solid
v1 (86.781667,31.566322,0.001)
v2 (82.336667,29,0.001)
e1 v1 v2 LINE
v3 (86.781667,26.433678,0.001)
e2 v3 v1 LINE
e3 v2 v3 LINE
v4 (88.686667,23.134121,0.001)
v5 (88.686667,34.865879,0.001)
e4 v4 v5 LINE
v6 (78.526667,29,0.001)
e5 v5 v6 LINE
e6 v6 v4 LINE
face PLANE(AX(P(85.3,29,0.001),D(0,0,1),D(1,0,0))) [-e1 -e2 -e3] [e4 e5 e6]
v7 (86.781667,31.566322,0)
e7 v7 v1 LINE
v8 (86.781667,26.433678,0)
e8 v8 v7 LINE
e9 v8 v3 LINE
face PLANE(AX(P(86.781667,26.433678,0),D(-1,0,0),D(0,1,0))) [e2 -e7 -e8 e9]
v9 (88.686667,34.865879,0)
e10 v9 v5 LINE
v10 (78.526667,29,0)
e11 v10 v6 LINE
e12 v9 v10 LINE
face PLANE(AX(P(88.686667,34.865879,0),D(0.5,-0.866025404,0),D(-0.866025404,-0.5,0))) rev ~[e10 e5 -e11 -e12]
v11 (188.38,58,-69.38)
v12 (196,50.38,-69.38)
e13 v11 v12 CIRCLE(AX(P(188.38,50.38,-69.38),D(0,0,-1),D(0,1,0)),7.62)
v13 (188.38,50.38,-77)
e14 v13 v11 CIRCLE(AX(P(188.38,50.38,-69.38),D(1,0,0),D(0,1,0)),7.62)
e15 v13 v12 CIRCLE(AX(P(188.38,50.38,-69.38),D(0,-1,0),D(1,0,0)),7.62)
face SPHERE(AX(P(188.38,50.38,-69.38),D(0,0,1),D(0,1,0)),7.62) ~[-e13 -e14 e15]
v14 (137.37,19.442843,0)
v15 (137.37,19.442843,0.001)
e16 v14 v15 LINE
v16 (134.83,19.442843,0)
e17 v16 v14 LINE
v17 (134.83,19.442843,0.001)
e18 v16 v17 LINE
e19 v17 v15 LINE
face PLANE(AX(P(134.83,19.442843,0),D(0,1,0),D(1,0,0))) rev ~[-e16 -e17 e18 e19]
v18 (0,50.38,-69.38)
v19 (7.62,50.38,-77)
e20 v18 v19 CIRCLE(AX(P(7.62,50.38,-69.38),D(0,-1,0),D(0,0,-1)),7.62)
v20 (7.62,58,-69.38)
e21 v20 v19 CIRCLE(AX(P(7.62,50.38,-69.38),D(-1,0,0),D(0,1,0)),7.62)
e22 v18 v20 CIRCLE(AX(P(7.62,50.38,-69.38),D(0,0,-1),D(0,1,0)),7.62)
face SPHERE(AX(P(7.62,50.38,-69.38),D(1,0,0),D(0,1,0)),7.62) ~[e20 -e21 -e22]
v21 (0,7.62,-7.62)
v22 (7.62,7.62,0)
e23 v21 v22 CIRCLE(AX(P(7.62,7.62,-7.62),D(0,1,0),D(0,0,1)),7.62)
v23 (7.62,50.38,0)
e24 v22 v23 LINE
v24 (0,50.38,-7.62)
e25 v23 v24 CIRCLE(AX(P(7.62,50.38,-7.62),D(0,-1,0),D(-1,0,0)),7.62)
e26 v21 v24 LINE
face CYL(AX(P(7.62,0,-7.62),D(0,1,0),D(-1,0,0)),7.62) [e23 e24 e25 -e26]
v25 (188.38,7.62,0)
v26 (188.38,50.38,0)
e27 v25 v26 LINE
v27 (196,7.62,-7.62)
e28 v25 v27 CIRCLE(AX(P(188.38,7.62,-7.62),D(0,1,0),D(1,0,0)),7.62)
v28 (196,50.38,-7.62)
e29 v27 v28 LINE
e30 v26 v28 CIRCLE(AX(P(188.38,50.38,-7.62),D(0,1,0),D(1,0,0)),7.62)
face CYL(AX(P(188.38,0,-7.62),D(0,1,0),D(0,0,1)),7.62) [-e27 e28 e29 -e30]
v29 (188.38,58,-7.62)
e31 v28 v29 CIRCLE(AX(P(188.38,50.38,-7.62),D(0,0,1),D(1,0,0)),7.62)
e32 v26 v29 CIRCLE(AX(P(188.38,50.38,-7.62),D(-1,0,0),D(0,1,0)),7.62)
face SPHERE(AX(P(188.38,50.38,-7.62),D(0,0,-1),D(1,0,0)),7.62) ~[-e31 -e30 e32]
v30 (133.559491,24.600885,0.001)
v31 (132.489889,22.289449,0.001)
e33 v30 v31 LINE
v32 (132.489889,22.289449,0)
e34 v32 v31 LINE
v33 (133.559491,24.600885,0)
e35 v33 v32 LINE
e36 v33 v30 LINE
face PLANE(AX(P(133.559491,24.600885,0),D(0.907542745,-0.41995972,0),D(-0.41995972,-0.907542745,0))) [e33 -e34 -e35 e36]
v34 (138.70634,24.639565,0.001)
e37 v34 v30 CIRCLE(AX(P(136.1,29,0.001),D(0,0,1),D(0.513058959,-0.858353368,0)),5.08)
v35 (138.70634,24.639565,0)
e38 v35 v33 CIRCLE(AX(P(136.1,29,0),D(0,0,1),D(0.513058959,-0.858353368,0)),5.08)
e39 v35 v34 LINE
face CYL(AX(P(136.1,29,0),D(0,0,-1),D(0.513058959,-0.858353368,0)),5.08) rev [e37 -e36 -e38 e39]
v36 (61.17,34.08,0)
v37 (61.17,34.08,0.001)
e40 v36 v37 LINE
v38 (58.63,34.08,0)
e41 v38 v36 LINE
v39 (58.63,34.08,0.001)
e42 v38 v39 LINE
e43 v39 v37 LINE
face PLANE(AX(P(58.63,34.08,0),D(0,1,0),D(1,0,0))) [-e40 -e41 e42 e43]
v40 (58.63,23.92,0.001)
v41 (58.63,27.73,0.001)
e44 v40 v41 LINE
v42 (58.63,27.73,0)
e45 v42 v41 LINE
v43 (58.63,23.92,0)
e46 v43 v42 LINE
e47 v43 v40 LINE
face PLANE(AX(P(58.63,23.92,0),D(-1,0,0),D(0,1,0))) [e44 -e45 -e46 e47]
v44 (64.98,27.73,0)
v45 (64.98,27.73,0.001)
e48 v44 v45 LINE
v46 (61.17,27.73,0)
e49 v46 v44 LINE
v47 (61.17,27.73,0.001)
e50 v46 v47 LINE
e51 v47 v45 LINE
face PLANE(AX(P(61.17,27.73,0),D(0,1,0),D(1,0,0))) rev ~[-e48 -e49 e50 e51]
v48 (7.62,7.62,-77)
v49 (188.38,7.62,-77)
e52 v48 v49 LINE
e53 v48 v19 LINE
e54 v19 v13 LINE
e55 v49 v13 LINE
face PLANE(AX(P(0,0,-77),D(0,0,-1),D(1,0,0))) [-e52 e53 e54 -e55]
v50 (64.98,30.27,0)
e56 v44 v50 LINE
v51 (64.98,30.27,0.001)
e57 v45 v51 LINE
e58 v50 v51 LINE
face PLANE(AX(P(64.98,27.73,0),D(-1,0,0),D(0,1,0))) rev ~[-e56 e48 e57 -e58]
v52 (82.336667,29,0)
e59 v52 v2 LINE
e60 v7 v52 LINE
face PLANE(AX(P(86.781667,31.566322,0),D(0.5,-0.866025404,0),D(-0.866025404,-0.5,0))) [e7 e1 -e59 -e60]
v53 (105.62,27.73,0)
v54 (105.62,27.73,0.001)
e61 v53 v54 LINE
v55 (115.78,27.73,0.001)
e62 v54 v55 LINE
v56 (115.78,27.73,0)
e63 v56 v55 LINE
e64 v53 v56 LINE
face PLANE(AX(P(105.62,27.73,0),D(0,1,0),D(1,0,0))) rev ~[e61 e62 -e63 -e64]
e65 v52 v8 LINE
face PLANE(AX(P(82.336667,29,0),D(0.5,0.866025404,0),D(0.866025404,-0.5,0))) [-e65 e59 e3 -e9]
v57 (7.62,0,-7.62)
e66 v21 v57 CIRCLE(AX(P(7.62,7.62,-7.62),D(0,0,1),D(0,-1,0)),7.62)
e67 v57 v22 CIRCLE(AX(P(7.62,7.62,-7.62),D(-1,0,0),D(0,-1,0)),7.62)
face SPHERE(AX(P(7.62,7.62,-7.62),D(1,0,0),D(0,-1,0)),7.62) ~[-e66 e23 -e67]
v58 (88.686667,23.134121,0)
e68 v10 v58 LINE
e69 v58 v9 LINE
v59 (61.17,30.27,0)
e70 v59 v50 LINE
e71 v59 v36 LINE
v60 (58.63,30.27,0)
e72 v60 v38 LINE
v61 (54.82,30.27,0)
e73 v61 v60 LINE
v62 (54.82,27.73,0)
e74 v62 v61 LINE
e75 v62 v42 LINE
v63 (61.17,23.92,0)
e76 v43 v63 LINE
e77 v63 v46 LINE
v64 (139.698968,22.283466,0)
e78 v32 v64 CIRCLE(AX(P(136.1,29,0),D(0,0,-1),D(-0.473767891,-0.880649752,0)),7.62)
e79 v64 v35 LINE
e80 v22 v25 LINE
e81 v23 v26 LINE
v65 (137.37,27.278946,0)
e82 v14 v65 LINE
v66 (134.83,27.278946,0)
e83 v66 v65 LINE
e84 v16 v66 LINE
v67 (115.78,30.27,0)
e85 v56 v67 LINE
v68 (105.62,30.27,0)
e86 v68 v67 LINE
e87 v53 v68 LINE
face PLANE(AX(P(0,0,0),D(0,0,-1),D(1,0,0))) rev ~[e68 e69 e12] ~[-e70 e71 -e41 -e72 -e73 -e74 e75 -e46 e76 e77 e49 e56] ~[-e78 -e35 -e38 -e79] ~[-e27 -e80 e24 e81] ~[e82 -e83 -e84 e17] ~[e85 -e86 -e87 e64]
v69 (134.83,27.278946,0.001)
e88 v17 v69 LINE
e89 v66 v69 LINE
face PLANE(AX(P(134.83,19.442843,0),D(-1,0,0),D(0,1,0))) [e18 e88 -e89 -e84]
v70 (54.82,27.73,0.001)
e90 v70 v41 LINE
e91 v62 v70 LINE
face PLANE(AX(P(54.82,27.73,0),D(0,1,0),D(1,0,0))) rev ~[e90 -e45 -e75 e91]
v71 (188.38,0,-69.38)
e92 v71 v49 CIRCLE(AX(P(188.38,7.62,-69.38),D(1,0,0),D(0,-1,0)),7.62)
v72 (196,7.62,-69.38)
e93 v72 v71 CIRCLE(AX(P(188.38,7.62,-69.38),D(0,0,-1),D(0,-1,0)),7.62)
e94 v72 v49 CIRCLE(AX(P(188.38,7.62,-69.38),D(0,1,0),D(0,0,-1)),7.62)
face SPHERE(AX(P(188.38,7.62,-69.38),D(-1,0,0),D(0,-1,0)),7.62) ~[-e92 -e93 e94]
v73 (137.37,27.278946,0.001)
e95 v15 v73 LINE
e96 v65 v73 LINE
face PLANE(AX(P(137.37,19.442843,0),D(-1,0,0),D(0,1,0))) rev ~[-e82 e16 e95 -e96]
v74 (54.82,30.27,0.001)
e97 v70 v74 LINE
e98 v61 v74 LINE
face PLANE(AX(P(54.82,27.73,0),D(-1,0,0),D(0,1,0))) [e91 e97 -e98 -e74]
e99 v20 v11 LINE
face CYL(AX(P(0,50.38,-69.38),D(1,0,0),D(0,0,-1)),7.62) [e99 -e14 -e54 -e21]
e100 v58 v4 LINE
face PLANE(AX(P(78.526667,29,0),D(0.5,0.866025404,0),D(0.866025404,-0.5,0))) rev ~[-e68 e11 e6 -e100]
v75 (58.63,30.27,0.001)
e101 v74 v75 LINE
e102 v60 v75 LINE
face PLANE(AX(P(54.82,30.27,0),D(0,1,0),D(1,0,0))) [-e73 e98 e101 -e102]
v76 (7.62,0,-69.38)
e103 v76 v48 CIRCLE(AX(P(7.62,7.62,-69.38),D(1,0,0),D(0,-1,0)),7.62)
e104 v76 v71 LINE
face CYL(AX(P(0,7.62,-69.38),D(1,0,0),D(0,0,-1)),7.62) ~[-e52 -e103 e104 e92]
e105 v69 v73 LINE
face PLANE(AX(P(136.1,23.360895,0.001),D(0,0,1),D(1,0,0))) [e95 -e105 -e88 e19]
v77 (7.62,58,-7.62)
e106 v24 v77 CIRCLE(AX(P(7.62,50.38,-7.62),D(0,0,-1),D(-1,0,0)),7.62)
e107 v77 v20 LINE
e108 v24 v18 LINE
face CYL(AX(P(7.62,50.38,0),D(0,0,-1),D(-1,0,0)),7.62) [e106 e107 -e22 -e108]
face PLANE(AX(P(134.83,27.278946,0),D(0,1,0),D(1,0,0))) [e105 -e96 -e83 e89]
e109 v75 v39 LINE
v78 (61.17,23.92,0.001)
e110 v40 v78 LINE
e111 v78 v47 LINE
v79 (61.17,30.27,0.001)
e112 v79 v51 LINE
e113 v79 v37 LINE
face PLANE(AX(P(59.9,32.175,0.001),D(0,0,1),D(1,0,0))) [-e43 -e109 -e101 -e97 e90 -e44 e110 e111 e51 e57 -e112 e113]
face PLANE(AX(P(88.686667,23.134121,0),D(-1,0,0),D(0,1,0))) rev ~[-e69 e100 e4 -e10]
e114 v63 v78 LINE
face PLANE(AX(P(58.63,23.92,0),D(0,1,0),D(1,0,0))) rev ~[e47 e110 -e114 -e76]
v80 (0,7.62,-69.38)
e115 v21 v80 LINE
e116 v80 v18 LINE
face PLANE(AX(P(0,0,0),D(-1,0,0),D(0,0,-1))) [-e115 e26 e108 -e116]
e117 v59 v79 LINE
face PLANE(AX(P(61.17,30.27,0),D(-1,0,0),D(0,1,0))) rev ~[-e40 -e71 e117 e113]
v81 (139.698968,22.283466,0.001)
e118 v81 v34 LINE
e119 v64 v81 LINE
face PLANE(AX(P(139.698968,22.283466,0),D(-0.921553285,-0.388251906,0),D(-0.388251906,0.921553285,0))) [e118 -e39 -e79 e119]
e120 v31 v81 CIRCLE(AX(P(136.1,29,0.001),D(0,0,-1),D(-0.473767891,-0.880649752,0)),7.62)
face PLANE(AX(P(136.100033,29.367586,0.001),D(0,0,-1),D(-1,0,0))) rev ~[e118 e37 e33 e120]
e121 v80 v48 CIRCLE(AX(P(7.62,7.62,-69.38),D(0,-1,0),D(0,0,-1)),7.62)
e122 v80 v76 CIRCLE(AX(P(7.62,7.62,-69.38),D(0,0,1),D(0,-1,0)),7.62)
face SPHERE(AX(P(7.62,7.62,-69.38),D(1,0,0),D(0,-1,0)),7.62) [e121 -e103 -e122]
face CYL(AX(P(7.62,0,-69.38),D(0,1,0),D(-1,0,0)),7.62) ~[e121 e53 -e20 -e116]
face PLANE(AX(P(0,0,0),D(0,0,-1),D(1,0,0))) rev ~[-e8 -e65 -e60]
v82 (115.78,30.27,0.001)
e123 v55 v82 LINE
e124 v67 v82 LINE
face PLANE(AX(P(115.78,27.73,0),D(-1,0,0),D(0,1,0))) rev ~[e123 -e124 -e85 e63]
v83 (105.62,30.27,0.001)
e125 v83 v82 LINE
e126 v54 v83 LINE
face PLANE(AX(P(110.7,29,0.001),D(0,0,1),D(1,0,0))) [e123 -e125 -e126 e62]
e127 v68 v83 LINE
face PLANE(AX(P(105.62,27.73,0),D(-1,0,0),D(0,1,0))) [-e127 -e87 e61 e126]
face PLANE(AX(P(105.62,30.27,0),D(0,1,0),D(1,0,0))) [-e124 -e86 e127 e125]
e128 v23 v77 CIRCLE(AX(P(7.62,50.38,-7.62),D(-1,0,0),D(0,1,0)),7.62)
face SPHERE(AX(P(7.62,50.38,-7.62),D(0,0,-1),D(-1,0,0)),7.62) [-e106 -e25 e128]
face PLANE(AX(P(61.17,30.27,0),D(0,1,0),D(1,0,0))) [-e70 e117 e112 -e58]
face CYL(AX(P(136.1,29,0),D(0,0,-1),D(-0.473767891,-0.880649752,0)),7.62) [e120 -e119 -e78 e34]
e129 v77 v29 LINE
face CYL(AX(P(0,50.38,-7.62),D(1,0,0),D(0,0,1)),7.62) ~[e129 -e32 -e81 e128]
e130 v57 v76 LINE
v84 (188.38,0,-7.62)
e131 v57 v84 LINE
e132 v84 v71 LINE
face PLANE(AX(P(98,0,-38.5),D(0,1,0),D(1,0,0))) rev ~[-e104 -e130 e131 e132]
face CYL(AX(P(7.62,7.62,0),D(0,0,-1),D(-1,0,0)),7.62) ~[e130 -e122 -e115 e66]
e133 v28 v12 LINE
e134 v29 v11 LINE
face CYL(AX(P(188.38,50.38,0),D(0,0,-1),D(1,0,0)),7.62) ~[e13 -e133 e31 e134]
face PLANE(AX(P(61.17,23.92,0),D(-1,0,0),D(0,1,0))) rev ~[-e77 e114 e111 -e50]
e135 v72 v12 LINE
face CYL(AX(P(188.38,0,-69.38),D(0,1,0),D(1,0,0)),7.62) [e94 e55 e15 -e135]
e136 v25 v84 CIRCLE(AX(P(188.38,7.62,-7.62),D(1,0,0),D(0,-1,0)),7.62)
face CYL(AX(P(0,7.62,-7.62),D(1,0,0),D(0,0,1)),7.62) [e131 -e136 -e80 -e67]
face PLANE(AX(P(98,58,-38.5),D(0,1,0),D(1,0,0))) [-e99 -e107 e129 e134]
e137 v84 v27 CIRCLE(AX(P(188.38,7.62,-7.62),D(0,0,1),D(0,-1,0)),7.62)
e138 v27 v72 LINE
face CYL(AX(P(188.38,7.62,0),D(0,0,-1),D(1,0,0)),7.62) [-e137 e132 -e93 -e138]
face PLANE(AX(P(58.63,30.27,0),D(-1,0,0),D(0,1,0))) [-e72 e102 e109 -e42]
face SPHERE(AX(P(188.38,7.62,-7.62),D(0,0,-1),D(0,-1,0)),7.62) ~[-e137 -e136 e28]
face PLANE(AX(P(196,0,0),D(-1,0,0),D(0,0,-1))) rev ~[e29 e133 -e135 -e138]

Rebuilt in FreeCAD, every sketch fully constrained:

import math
import FreeCAD as App
import Part
import Sketcher

V = App.Vector
Q = App.Units.Quantity

doc = App.newDocument("Part")
body = doc.addObject("PartDesign::Body", "Body")

sketch1 = body.newObject("Sketcher::SketchObject", "Sketch")
sketch1.AttachmentSupport = (doc.getObject("XZ_Plane"), [""])
sketch1.MapMode = "FlatFace"
sketch1.addGeometry([
    Part.LineSegment(V(0, -77, 0), V(0, 0, 0)),
    Part.LineSegment(V(0, 0, 0), V(196, 0, 0)),
    Part.LineSegment(V(196, 0, 0), V(196, -77, 0)),
    Part.LineSegment(V(196, -77, 0), V(0, -77, 0)),
], False)
sketch1.addConstraint([
    Sketcher.Constraint("Coincident", 0, 2, 1, 1),
    Sketcher.Constraint("Coincident", 1, 2, 2, 1),
    Sketcher.Constraint("Coincident", 2, 2, 3, 1),
    Sketcher.Constraint("Coincident", 3, 2, 0, 1),
    Sketcher.Constraint("Vertical", 0),
    Sketcher.Constraint("Horizontal", 1),
    Sketcher.Constraint("Vertical", 2),
    Sketcher.Constraint("Horizontal", 3),
    Sketcher.Constraint("Coincident", 0, 2, -1, 1),
    Sketcher.Constraint("DistanceX", 1, 1, 1, 2, Q("196 mm")),
    Sketcher.Constraint("DistanceY", 0, 1, 0, 2, Q("77 mm")),
])
pad1 = body.newObject("PartDesign::Pad", "Pad")
pad1.Profile = sketch1
pad1.Length = 58
pad1.Reversed = True
doc.recompute()

fillet = body.newObject("PartDesign::Fillet", "Fillet")
fillet.Base = (pad1, ["Edge1"])
fillet.UseAllEdges = True
fillet.Radius = Q("0.3 in")

sketch2 = body.newObject("Sketcher::SketchObject", "Sketch001")
sketch2.AttachmentSupport = (doc.getObject("XY_Plane"), [""])
sketch2.MapMode = "FlatFace"
sketch2.addGeometry([
    Part.LineSegment(V(138.7, 24.6, 0), V(139.7, 22.3, 0)),
    Part.ArcOfCircle(Part.Circle(V(136.1, 29, 0), V(0, 0, 1), 7.6), math.radians(-62), math.radians(242)),
    Part.LineSegment(V(132.5, 22.3, 0), V(133.6, 24.6, 0)),
    Part.ArcOfCircle(Part.Circle(V(136.1, 29, 0), V(0, 0, 1), 5.1), math.radians(-59), math.radians(240)),
    Part.LineSegment(V(134.8, 27.3, 0), V(134.8, 19.4, 0)),
    Part.LineSegment(V(134.8, 19.4, 0), V(137.4, 19.4, 0)),
    Part.LineSegment(V(137.4, 19.4, 0), V(137.4, 27.3, 0)),
    Part.LineSegment(V(137.4, 27.3, 0), V(134.8, 27.3, 0)),
    Part.LineSegment(V(105.6, 30.3, 0), V(105.6, 27.7, 0)),
    Part.LineSegment(V(105.6, 27.7, 0), V(115.8, 27.7, 0)),
    Part.LineSegment(V(115.8, 27.7, 0), V(115.8, 30.3, 0)),
    Part.LineSegment(V(115.8, 30.3, 0), V(105.6, 30.3, 0)),
    Part.LineSegment(V(88.7, 23.1, 0), V(88.7, 34.9, 0)),
    Part.LineSegment(V(88.7, 34.9, 0), V(78.5, 29, 0)),
    Part.LineSegment(V(78.5, 29, 0), V(88.7, 23.1, 0)),
    Part.LineSegment(V(86.8, 26.4, 0), V(82.3, 29, 0)),
    Part.LineSegment(V(82.3, 29, 0), V(86.8, 31.6, 0)),
    Part.LineSegment(V(86.8, 31.6, 0), V(86.8, 26.4, 0)),
    Part.LineSegment(V(58.6, 34.1, 0), V(58.6, 30.3, 0)),
    Part.LineSegment(V(58.6, 30.3, 0), V(54.8, 30.3, 0)),
    Part.LineSegment(V(54.8, 30.3, 0), V(54.8, 27.7, 0)),
    Part.LineSegment(V(54.8, 27.7, 0), V(58.6, 27.7, 0)),
    Part.LineSegment(V(58.6, 27.7, 0), V(58.6, 23.9, 0)),
    Part.LineSegment(V(58.6, 23.9, 0), V(61.2, 23.9, 0)),
    Part.LineSegment(V(61.2, 23.9, 0), V(61.2, 27.7, 0)),
    Part.LineSegment(V(61.2, 27.7, 0), V(65, 27.7, 0)),
    Part.LineSegment(V(65, 27.7, 0), V(65, 30.3, 0)),
    Part.LineSegment(V(65, 30.3, 0), V(61.2, 30.3, 0)),
    Part.LineSegment(V(61.2, 30.3, 0), V(61.2, 34.1, 0)),
    Part.LineSegment(V(61.2, 34.1, 0), V(58.6, 34.1, 0)),
], False)
sketch2.addConstraint([
    Sketcher.Constraint("Coincident", 0, 2, 1, 1),
    Sketcher.Constraint("Coincident", 1, 2, 2, 1),
    Sketcher.Constraint("Coincident", 2, 2, 3, 2),
    Sketcher.Constraint("Coincident", 3, 1, 0, 1),
    Sketcher.Constraint("Coincident", 4, 2, 5, 1),
    Sketcher.Constraint("Coincident", 5, 2, 6, 1),
    Sketcher.Constraint("Coincident", 6, 2, 7, 1),
    Sketcher.Constraint("Coincident", 7, 2, 4, 1),
    Sketcher.Constraint("Coincident", 8, 2, 9, 1),
    Sketcher.Constraint("Coincident", 9, 2, 10, 1),
    Sketcher.Constraint("Coincident", 10, 2, 11, 1),
    Sketcher.Constraint("Coincident", 11, 2, 8, 1),
    Sketcher.Constraint("Coincident", 12, 2, 13, 1),
    Sketcher.Constraint("Coincident", 13, 2, 14, 1),
    Sketcher.Constraint("Coincident", 14, 2, 12, 1),
    Sketcher.Constraint("Coincident", 15, 2, 16, 1),
    Sketcher.Constraint("Coincident", 16, 2, 17, 1),
    Sketcher.Constraint("Coincident", 17, 2, 15, 1),
    Sketcher.Constraint("Coincident", 18, 2, 19, 1),
    Sketcher.Constraint("Coincident", 19, 2, 20, 1),
    Sketcher.Constraint("Coincident", 20, 2, 21, 1),
    Sketcher.Constraint("Coincident", 21, 2, 22, 1),
    Sketcher.Constraint("Coincident", 22, 2, 23, 1),
    Sketcher.Constraint("Coincident", 23, 2, 24, 1),
    Sketcher.Constraint("Coincident", 24, 2, 25, 1),
    Sketcher.Constraint("Coincident", 25, 2, 26, 1),
    Sketcher.Constraint("Coincident", 26, 2, 27, 1),
    Sketcher.Constraint("Coincident", 27, 2, 28, 1),
    Sketcher.Constraint("Coincident", 28, 2, 29, 1),
    Sketcher.Constraint("Coincident", 29, 2, 18, 1),
    Sketcher.Constraint("Vertical", 4),
    Sketcher.Constraint("Horizontal", 5),
    Sketcher.Constraint("Vertical", 6),
    Sketcher.Constraint("Horizontal", 7),
    Sketcher.Constraint("Vertical", 8),
    Sketcher.Constraint("Horizontal", 9),
    Sketcher.Constraint("Vertical", 10),
    Sketcher.Constraint("Horizontal", 11),
    Sketcher.Constraint("Vertical", 12),
    Sketcher.Constraint("Vertical", 17),
    Sketcher.Constraint("Vertical", 18),
    Sketcher.Constraint("Horizontal", 19),
    Sketcher.Constraint("Vertical", 20),
    Sketcher.Constraint("Horizontal", 21),
    Sketcher.Constraint("Vertical", 22),
    Sketcher.Constraint("Horizontal", 23),
    Sketcher.Constraint("Vertical", 24),
    Sketcher.Constraint("Horizontal", 25),
    Sketcher.Constraint("Vertical", 26),
    Sketcher.Constraint("Horizontal", 27),
    Sketcher.Constraint("Vertical", 28),
    Sketcher.Constraint("Horizontal", 29),
    Sketcher.Constraint("Coincident", 3, 3, 1, 3),
    Sketcher.Constraint("Parallel", 14, 15),
    Sketcher.Constraint("Parallel", 13, 16),
    Sketcher.Constraint("Horizontal", 3, 3, 13, 2),
    Sketcher.Constraint("Horizontal", 13, 2, 15, 2),
    Sketcher.Constraint("Horizontal", 11, 2, 18, 2),
    Sketcher.Constraint("Horizontal", 9, 2, 20, 2),
    Sketcher.Constraint("Horizontal", 21, 2, 24, 2),
    Sketcher.Constraint("Horizontal", 19, 2, 26, 2),
    Sketcher.Constraint("Vertical", 18, 2, 21, 2),
    Sketcher.Constraint("Vertical", 24, 2, 27, 2),
    Sketcher.Constraint("Equal", 7, 23),
    Sketcher.Constraint("Equal", 21, 25),
    Sketcher.Constraint("Equal", 29, 8),
    Sketcher.Constraint("Equal", 27, 18),
    Sketcher.Constraint("Equal", 18, 22),
    Sketcher.Constraint("Equal", 13, 14),
    Sketcher.Constraint("Radius", 1, Q("0.3 in")),
    Sketcher.Constraint("Radius", 3, Q("0.2 in")),
    Sketcher.Constraint("DistanceX", 5, 1, 5, 2, Q("0.1 in")),
    Sketcher.Constraint("DistanceX", 9, 1, 9, 2, Q("0.4 in")),
    Sketcher.Constraint("Angle", 13, Q("-150 deg")),
    Sketcher.Constraint("DistanceX", 19, 2, 19, 1, Q("0.15 in")),
    Sketcher.Constraint("DistanceX", 8, 2, 1, 3, Q("1.2 in")),
    Sketcher.Constraint("DistanceX", 13, 2, 12, 2, Q("0.4 in")),
    Sketcher.Constraint("DistanceY", 22, 2, 13, 2, Q("0.2 in")),
    Sketcher.Constraint("DistanceX", 4, 2, 1, 3, Q("0.05 in")),
    Sketcher.Constraint("DistanceX", 13, 2, 15, 2, Q("0.15 in")),
    Sketcher.Constraint("DistanceX", 16, 2, 12, 2, Q("0.075 in")),
    Sketcher.Constraint("DistanceX", -1, 1, 1, 3, Q("136.1 mm")),
    Sketcher.Constraint("DistanceY", -1, 1, 1, 3, Q("29 mm")),
    Sketcher.Constraint("DistanceX", -1, 1, 18, 2, Q("58.63 mm")),
    Sketcher.Constraint("DistanceY", 0, 2, 3, 1, Q("2.356099 mm")),
    Sketcher.Constraint("Distance", 0, Q("2.556661 mm")),
    Sketcher.Constraint("DistanceY", 4, 2, 4, 1, Q("7.836102 mm")),
    Sketcher.Constraint("DistanceX", -1, 1, 1, 2, Q("132.489889 mm")),
    Sketcher.Constraint("DistanceX", -1, 1, 2, 2, Q("133.559491 mm")),
    Sketcher.Constraint("DistanceY", 4, 2, 2, 2, Q("5.158041 mm")),
    Sketcher.Constraint("DistanceX", -1, 1, 12, 2, Q("88.686667 mm")),
])
pad2 = body.newObject("PartDesign::Pad", "Pad001")
pad2.Profile = sketch2
pad2.Length = 0.001

doc.recompute()
